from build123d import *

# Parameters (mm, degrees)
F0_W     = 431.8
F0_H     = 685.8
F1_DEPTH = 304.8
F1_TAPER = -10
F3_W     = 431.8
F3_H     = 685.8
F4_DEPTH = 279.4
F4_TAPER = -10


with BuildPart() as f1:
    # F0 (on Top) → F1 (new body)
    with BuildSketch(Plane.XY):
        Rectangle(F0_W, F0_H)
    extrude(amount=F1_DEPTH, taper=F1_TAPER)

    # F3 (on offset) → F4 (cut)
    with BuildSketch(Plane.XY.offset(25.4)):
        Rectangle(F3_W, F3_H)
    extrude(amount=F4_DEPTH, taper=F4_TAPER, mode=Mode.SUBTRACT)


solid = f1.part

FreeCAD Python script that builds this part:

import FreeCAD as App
import Part
import Sketcher
Q = App.Units.Quantity


def add_polygon(sketch, points):
    """Adds a closed chain of lines whose ends are joined by coincident constraints."""
    first, n = sketch.GeometryCount, len(points)
    for a, b in zip(points, points[1:] + points[:1]):
        sketch.addGeometry(Part.LineSegment(App.Vector(*a, 0), App.Vector(*b, 0)), False)
    for i in range(n):
        sketch.addConstraint(Sketcher.Constraint("Coincident", first + i, 2, first + (i + 1) % n, 1))

doc = App.newDocument("Part")
body = doc.addObject("PartDesign::Body", "Body")

sketch1 = doc.addObject("Sketcher::SketchObject", "Sketch")
body.addObject(sketch1)
sketch1.AttachmentSupport = (doc.XY_Plane, [""])
sketch1.MapMode = "FlatFace"
add_polygon(sketch1, [(-216, 343), (-216, -343), (216, -343), (216, 343)])
sketch1.addConstraint(Sketcher.Constraint("Vertical", 0))
sketch1.addConstraint(Sketcher.Constraint("Horizontal", 1))
sketch1.addConstraint(Sketcher.Constraint("Vertical", 2))
sketch1.addConstraint(Sketcher.Constraint("Horizontal", 3))
sketch1.addConstraint(Sketcher.Constraint("Symmetric", 0, 2, 2, 2, -1, 1))
sketch1.addConstraint(Sketcher.Constraint("DistanceX", 1, 1, 1, 2, Q("17 in")))
sketch1.addConstraint(Sketcher.Constraint("DistanceY", 0, 2, 0, 1, Q("27 in")))
pad1 = doc.addObject("PartDesign::Pad", "Pad")
body.addObject(pad1)
pad1.Profile = sketch1
pad1.Length = Q("12 in")
pad1.TaperAngle = 10

sketch2 = doc.addObject("Sketcher::SketchObject", "Sketch001")
body.addObject(sketch2)
sketch2.AttachmentSupport = (doc.XY_Plane, [""])
sketch2.MapMode = "FlatFace"
sketch2.AttachmentOffset = App.Placement(App.Vector(0, 0, 1 * 25.4), App.Rotation())
add_polygon(sketch2, [(-216, 343), (-216, -343), (216, -343), (216, 343)])
sketch2.addConstraint(Sketcher.Constraint("Vertical", 0))
sketch2.addConstraint(Sketcher.Constraint("Horizontal", 1))
sketch2.addConstraint(Sketcher.Constraint("Vertical", 2))
sketch2.addConstraint(Sketcher.Constraint("Horizontal", 3))
sketch2.addConstraint(Sketcher.Constraint("Symmetric", 0, 2, 2, 2, -1, 1))
sketch2.addConstraint(Sketcher.Constraint("DistanceX", 1, 1, 1, 2, Q("17 in")))
sketch2.addConstraint(Sketcher.Constraint("DistanceY", 0, 2, 0, 1, Q("27 in")))
pocket1 = doc.addObject("PartDesign::Pocket", "Pocket")
body.addObject(pocket1)
pocket1.Profile = sketch2
pocket1.Length = Q("11 in")
pocket1.Reversed = True
pocket1.TaperAngle = 10

doc.recompute()
